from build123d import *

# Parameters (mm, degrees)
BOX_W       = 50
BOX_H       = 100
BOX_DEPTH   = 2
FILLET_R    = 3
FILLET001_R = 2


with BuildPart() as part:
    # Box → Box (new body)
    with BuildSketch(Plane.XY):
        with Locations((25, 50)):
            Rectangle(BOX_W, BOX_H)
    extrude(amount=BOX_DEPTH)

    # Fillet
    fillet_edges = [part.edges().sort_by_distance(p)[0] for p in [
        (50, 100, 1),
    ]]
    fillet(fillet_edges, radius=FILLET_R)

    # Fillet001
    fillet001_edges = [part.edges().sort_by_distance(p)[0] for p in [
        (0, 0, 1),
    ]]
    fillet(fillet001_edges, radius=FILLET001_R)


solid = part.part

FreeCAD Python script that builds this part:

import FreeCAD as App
import Part
import Sketcher

V = App.Vector


def edges_at(feature, points):
    """Names of the edges that pass closest to the given points."""
    edges = feature.Shape.Edges
    near = lambda p: min(range(len(edges)), key=lambda i: edges[i].distToShape(Part.Vertex(*p))[0])
    return sorted({f"Edge{near(p) + 1}" for p in points})

doc = App.newDocument("Part")
params = doc.addObject("Spreadsheet::Sheet", "Params")
for row, (alias, value) in enumerate([
    ("sketch1_width", "50 mm"),
    ("sketch1_height", "100 mm"),
    ("pad1_length", "2 mm"),
    ("fillet_radius", "3 mm"),
    ("fillet2_radius", "2 mm"),
], start=1):
    params.set(f"A{row}", alias)
    params.set(f"B{row}", "=" + value)
    params.setAlias(f"B{row}", alias)

body = doc.addObject("PartDesign::Body", "Body")

# Sketch on XY plane
sketch1 = body.newObject("Sketcher::SketchObject", "Sketch")
sketch1.AttachmentSupport = (doc.getObject("XY_Plane"), [""])
sketch1.MapMode = "FlatFace"
sketch1.addGeometry(Part.LineSegment(V(0, 100, 0), V(0, 0, 0)), False)
sketch1.addGeometry(Part.LineSegment(V(0, 0, 0), V(50, 0, 0)), False)
sketch1.addGeometry(Part.LineSegment(V(50, 0, 0), V(50, 100, 0)), False)
sketch1.addGeometry(Part.LineSegment(V(50, 100, 0), V(0, 100, 0)), False)
sketch1.addConstraint(Sketcher.Constraint("Coincident", 0, 2, 1, 1))
sketch1.addConstraint(Sketcher.Constraint("Coincident", 1, 2, 2, 1))
sketch1.addConstraint(Sketcher.Constraint("Coincident", 2, 2, 3, 1))
sketch1.addConstraint(Sketcher.Constraint("Coincident", 3, 2, 0, 1))
sketch1.addConstraint(Sketcher.Constraint("Vertical", 0))
sketch1.addConstraint(Sketcher.Constraint("Horizontal", 1))
sketch1.addConstraint(Sketcher.Constraint("Vertical", 2))
sketch1.addConstraint(Sketcher.Constraint("Horizontal", 3))
sketch1.addConstraint(Sketcher.Constraint("Coincident", 0, 2, -1, 1))
sketch1.addConstraint(Sketcher.Constraint("DistanceX", 1, 1, 1, 2, 50.0))
sketch1.addConstraint(Sketcher.Constraint("DistanceY", 0, 2, 0, 1, 100.0))
sketch1.setExpression("Constraints[9]", "Params.sketch1_width")
sketch1.setExpression("Constraints[10]", "Params.sketch1_height")
pad1 = body.newObject("PartDesign::Pad", "Pad")
pad1.Profile = sketch1
pad1.setExpression("Length", "Params.pad1_length")
doc.recompute()

fillet = body.newObject("PartDesign::Fillet", "Fillet")
fillet.Base = (pad1, edges_at(pad1, [(50, 100, 1)]))
fillet.setExpression("Radius", "Params.fillet_radius")
doc.recompute()

fillet2 = body.newObject("PartDesign::Fillet", "Fillet001")
fillet2.Base = (fillet, edges_at(fillet, [(0, 0, 1)]))
fillet2.setExpression("Radius", "Params.fillet2_radius")

doc.recompute()
